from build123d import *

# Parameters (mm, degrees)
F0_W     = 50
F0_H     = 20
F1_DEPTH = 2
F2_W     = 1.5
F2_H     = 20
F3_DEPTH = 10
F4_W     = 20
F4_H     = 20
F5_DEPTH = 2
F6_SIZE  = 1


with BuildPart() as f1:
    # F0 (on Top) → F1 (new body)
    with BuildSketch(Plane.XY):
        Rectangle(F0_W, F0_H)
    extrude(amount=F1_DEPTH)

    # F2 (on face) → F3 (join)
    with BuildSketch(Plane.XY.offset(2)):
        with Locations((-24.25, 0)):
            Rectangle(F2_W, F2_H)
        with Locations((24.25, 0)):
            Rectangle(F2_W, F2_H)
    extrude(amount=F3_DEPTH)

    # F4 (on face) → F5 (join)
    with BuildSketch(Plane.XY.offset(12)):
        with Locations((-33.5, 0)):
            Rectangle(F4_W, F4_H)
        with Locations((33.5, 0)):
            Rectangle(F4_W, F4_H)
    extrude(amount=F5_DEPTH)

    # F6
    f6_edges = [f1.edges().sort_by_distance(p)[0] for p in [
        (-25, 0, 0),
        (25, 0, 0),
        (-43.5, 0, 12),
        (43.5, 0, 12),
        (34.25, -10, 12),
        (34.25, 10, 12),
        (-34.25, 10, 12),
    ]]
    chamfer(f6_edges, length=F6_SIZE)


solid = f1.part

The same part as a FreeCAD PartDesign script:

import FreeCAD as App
import Part
import Sketcher


def edges_at(feature, points):
    """Names of the edges that pass closest to the given points."""
    edges = feature.Shape.Edges
    near = lambda p: min(range(len(edges)), key=lambda i: edges[i].distToShape(Part.Vertex(*p))[0])
    return sorted({f"Edge{near(p) + 1}" for p in points})

doc = App.newDocument("Part")
body = doc.addObject("PartDesign::Body", "Body")

# Sketch on XY plane
sketch1 = doc.addObject("Sketcher::SketchObject", "Sketch")
body.addObject(sketch1)
sketch1.AttachmentSupport = (doc.XY_Plane, [""])
sketch1.MapMode = "FlatFace"
sketch1.addGeometry(Part.LineSegment(App.Vector(-25, 10, 0), App.Vector(-25, -10, 0)), False)
sketch1.addGeometry(Part.LineSegment(App.Vector(-25, -10, 0), App.Vector(25, -10, 0)), False)
sketch1.addGeometry(Part.LineSegment(App.Vector(25, -10, 0), App.Vector(25, 10, 0)), False)
sketch1.addGeometry(Part.LineSegment(App.Vector(25, 10, 0), App.Vector(-25, 10, 0)), False)
sketch1.addConstraint(Sketcher.Constraint("Coincident", 0, 2, 1, 1))
sketch1.addConstraint(Sketcher.Constraint("Coincident", 1, 2, 2, 1))
sketch1.addConstraint(Sketcher.Constraint("Coincident", 2, 2, 3, 1))
sketch1.addConstraint(Sketcher.Constraint("Coincident", 3, 2, 0, 1))
sketch1.addConstraint(Sketcher.Constraint("Vertical", 0))
sketch1.addConstraint(Sketcher.Constraint("Horizontal", 1))
sketch1.addConstraint(Sketcher.Constraint("Vertical", 2))
sketch1.addConstraint(Sketcher.Constraint("Horizontal", 3))
sketch1.addConstraint(Sketcher.Constraint("Symmetric", 0, 2, 2, 2, -1, 1))
sketch1.addConstraint(Sketcher.Constraint("DistanceX", 1, 1, 1, 2, 50.0))
sketch1.addConstraint(Sketcher.Constraint("DistanceY", 0, 2, 0, 1, 20.0))
pad1 = doc.addObject("PartDesign::Pad", "Pad")
body.addObject(pad1)
pad1.Profile = sketch1
pad1.Length = 2

# Sketch on XY plane
sketch2 = doc.addObject("Sketcher::SketchObject", "Sketch001")
body.addObject(sketch2)
sketch2.AttachmentSupport = (doc.XY_Plane, [""])
sketch2.MapMode = "FlatFace"
sketch2.AttachmentOffset = App.Placement(App.Vector(0, 0, 2), App.Rotation())
sketch2.addGeometry(Part.LineSegment(App.Vector(-25, 10, 0), App.Vector(-25, -10, 0)), False)
sketch2.addGeometry(Part.LineSegment(App.Vector(-25, -10, 0), App.Vector(-23.5, -10, 0)), False)
sketch2.addGeometry(Part.LineSegment(App.Vector(-23.5, -10, 0), App.Vector(-23.5, 10, 0)), False)
sketch2.addGeometry(Part.LineSegment(App.Vector(-23.5, 10, 0), App.Vector(-25, 10, 0)), False)
sketch2.addGeometry(Part.LineSegment(App.Vector(23.5, 10, 0), App.Vector(23.5, -10, 0)), False)
sketch2.addGeometry(Part.LineSegment(App.Vector(23.5, -10, 0), App.Vector(25, -10, 0)), False)
sketch2.addGeometry(Part.LineSegment(App.Vector(25, -10, 0), App.Vector(25, 10, 0)), False)
sketch2.addGeometry(Part.LineSegment(App.Vector(25, 10, 0), App.Vector(23.5, 10, 0)), False)
sketch2.addConstraint(Sketcher.Constraint("Coincident", 0, 2, 1, 1))
sketch2.addConstraint(Sketcher.Constraint("Coincident", 1, 2, 2, 1))
sketch2.addConstraint(Sketcher.Constraint("Coincident", 2, 2, 3, 1))
sketch2.addConstraint(Sketcher.Constraint("Coincident", 3, 2, 0, 1))
sketch2.addConstraint(Sketcher.Constraint("Coincident", 4, 2, 5, 1))
sketch2.addConstraint(Sketcher.Constraint("Coincident", 5, 2, 6, 1))
sketch2.addConstraint(Sketcher.Constraint("Coincident", 6, 2, 7, 1))
sketch2.addConstraint(Sketcher.Constraint("Coincident", 7, 2, 4, 1))
sketch2.addConstraint(Sketcher.Constraint("Vertical", 0))
sketch2.addConstraint(Sketcher.Constraint("Horizontal", 1))
sketch2.addConstraint(Sketcher.Constraint("Vertical", 2))
sketch2.addConstraint(Sketcher.Constraint("Horizontal", 3))
sketch2.addConstraint(Sketcher.Constraint("Vertical", 4))
sketch2.addConstraint(Sketcher.Constraint("Horizontal", 5))
sketch2.addConstraint(Sketcher.Constraint("Vertical", 6))
sketch2.addConstraint(Sketcher.Constraint("Horizontal", 7))
sketch2.addConstraint(Sketcher.Constraint("Symmetric", 2, 2, 4, 2, -1, 1))
sketch2.addConstraint(Sketcher.Constraint("Symmetric", 0, 2, 6, 2, -1, 1))
sketch2.addConstraint(Sketcher.Constraint("Horizontal", 1, 2, 4, 2))
sketch2.addConstraint(Sketcher.Constraint("DistanceY", 0, 2, 0, 1, 20.0))
sketch2.addConstraint(Sketcher.Constraint("DistanceX", 1, 1, 1, 2, 1.5))
sketch2.addConstraint(Sketcher.Constraint("DistanceX", 0, 2, -1, 1, 25.0))
pad2 = doc.addObject("PartDesign::Pad", "Pad001")
body.addObject(pad2)
pad2.Profile = sketch2
pad2.Length = 10

# Sketch on XY plane
sketch3 = doc.addObject("Sketcher::SketchObject", "Sketch002")
body.addObject(sketch3)
sketch3.AttachmentSupport = (doc.XY_Plane, [""])
sketch3.MapMode = "FlatFace"
sketch3.AttachmentOffset = App.Placement(App.Vector(0, 0, 12), App.Rotation())
sketch3.addGeometry(Part.LineSegment(App.Vector(-44, 10, 0), App.Vector(-44, -10, 0)), False)
sketch3.addGeometry(Part.LineSegment(App.Vector(-44, -10, 0), App.Vector(-24, -10, 0)), False)
sketch3.addGeometry(Part.LineSegment(App.Vector(-24, -10, 0), App.Vector(-24, 10, 0)), False)
sketch3.addGeometry(Part.LineSegment(App.Vector(-24, 10, 0), App.Vector(-44, 10, 0)), False)
sketch3.addGeometry(Part.LineSegment(App.Vector(24, 10, 0), App.Vector(24, -10, 0)), False)
sketch3.addGeometry(Part.LineSegment(App.Vector(24, -10, 0), App.Vector(44, -10, 0)), False)
sketch3.addGeometry(Part.LineSegment(App.Vector(44, -10, 0), App.Vector(44, 10, 0)), False)
sketch3.addGeometry(Part.LineSegment(App.Vector(44, 10, 0), App.Vector(24, 10, 0)), False)
sketch3.addConstraint(Sketcher.Constraint("Coincident", 0, 2, 1, 1))
sketch3.addConstraint(Sketcher.Constraint("Coincident", 1, 2, 2, 1))
sketch3.addConstraint(Sketcher.Constraint("Coincident", 2, 2, 3, 1))
sketch3.addConstraint(Sketcher.Constraint("Coincident", 3, 2, 0, 1))
sketch3.addConstraint(Sketcher.Constraint("Coincident", 4, 2, 5, 1))
sketch3.addConstraint(Sketcher.Constraint("Coincident", 5, 2, 6, 1))
sketch3.addConstraint(Sketcher.Constraint("Coincident", 6, 2, 7, 1))
sketch3.addConstraint(Sketcher.Constraint("Coincident", 7, 2, 4, 1))
sketch3.addConstraint(Sketcher.Constraint("Vertical", 0))
sketch3.addConstraint(Sketcher.Constraint("Horizontal", 1))
sketch3.addConstraint(Sketcher.Constraint("Vertical", 2))
sketch3.addConstraint(Sketcher.Constraint("Horizontal", 3))
sketch3.addConstraint(Sketcher.Constraint("Vertical", 4))
sketch3.addConstraint(Sketcher.Constraint("Horizontal", 5))
sketch3.addConstraint(Sketcher.Constraint("Vertical", 6))
sketch3.addConstraint(Sketcher.Constraint("Horizontal", 7))
sketch3.addConstraint(Sketcher.Constraint("Symmetric", 2, 2, 4, 2, -1, 1))
sketch3.addConstraint(Sketcher.Constraint("Symmetric", 0, 2, 6, 2, -1, 1))
sketch3.addConstraint(Sketcher.Constraint("Horizontal", 1, 2, 4, 2))
sketch3.addConstraint(Sketcher.Constraint("Equal", 7, 0))
sketch3.addConstraint(Sketcher.Constraint("DistanceX", 1, 1, 1, 2, 20.0))
sketch3.addConstraint(Sketcher.Constraint("DistanceX", 1, 2, 4, 2, 47.0))
pad3 = doc.addObject("PartDesign::Pad", "Pad002")
body.addObject(pad3)
pad3.Profile = sketch3
pad3.Length = 2
doc.recompute()

chamfer = doc.addObject("PartDesign::Chamfer", "Chamfer")
body.addObject(chamfer)
chamfer.Base = (pad3, edges_at(pad3, [
    (-25, 0, 0),
    (25, 0, 0),
    (-43.5, 0, 12),
    (43.5, 0, 12),
    (34.25, -10, 12),
    (34.25, 10, 12),
    (-34.25, 10, 12),
]))
chamfer.Size = 1

doc.recompute()
